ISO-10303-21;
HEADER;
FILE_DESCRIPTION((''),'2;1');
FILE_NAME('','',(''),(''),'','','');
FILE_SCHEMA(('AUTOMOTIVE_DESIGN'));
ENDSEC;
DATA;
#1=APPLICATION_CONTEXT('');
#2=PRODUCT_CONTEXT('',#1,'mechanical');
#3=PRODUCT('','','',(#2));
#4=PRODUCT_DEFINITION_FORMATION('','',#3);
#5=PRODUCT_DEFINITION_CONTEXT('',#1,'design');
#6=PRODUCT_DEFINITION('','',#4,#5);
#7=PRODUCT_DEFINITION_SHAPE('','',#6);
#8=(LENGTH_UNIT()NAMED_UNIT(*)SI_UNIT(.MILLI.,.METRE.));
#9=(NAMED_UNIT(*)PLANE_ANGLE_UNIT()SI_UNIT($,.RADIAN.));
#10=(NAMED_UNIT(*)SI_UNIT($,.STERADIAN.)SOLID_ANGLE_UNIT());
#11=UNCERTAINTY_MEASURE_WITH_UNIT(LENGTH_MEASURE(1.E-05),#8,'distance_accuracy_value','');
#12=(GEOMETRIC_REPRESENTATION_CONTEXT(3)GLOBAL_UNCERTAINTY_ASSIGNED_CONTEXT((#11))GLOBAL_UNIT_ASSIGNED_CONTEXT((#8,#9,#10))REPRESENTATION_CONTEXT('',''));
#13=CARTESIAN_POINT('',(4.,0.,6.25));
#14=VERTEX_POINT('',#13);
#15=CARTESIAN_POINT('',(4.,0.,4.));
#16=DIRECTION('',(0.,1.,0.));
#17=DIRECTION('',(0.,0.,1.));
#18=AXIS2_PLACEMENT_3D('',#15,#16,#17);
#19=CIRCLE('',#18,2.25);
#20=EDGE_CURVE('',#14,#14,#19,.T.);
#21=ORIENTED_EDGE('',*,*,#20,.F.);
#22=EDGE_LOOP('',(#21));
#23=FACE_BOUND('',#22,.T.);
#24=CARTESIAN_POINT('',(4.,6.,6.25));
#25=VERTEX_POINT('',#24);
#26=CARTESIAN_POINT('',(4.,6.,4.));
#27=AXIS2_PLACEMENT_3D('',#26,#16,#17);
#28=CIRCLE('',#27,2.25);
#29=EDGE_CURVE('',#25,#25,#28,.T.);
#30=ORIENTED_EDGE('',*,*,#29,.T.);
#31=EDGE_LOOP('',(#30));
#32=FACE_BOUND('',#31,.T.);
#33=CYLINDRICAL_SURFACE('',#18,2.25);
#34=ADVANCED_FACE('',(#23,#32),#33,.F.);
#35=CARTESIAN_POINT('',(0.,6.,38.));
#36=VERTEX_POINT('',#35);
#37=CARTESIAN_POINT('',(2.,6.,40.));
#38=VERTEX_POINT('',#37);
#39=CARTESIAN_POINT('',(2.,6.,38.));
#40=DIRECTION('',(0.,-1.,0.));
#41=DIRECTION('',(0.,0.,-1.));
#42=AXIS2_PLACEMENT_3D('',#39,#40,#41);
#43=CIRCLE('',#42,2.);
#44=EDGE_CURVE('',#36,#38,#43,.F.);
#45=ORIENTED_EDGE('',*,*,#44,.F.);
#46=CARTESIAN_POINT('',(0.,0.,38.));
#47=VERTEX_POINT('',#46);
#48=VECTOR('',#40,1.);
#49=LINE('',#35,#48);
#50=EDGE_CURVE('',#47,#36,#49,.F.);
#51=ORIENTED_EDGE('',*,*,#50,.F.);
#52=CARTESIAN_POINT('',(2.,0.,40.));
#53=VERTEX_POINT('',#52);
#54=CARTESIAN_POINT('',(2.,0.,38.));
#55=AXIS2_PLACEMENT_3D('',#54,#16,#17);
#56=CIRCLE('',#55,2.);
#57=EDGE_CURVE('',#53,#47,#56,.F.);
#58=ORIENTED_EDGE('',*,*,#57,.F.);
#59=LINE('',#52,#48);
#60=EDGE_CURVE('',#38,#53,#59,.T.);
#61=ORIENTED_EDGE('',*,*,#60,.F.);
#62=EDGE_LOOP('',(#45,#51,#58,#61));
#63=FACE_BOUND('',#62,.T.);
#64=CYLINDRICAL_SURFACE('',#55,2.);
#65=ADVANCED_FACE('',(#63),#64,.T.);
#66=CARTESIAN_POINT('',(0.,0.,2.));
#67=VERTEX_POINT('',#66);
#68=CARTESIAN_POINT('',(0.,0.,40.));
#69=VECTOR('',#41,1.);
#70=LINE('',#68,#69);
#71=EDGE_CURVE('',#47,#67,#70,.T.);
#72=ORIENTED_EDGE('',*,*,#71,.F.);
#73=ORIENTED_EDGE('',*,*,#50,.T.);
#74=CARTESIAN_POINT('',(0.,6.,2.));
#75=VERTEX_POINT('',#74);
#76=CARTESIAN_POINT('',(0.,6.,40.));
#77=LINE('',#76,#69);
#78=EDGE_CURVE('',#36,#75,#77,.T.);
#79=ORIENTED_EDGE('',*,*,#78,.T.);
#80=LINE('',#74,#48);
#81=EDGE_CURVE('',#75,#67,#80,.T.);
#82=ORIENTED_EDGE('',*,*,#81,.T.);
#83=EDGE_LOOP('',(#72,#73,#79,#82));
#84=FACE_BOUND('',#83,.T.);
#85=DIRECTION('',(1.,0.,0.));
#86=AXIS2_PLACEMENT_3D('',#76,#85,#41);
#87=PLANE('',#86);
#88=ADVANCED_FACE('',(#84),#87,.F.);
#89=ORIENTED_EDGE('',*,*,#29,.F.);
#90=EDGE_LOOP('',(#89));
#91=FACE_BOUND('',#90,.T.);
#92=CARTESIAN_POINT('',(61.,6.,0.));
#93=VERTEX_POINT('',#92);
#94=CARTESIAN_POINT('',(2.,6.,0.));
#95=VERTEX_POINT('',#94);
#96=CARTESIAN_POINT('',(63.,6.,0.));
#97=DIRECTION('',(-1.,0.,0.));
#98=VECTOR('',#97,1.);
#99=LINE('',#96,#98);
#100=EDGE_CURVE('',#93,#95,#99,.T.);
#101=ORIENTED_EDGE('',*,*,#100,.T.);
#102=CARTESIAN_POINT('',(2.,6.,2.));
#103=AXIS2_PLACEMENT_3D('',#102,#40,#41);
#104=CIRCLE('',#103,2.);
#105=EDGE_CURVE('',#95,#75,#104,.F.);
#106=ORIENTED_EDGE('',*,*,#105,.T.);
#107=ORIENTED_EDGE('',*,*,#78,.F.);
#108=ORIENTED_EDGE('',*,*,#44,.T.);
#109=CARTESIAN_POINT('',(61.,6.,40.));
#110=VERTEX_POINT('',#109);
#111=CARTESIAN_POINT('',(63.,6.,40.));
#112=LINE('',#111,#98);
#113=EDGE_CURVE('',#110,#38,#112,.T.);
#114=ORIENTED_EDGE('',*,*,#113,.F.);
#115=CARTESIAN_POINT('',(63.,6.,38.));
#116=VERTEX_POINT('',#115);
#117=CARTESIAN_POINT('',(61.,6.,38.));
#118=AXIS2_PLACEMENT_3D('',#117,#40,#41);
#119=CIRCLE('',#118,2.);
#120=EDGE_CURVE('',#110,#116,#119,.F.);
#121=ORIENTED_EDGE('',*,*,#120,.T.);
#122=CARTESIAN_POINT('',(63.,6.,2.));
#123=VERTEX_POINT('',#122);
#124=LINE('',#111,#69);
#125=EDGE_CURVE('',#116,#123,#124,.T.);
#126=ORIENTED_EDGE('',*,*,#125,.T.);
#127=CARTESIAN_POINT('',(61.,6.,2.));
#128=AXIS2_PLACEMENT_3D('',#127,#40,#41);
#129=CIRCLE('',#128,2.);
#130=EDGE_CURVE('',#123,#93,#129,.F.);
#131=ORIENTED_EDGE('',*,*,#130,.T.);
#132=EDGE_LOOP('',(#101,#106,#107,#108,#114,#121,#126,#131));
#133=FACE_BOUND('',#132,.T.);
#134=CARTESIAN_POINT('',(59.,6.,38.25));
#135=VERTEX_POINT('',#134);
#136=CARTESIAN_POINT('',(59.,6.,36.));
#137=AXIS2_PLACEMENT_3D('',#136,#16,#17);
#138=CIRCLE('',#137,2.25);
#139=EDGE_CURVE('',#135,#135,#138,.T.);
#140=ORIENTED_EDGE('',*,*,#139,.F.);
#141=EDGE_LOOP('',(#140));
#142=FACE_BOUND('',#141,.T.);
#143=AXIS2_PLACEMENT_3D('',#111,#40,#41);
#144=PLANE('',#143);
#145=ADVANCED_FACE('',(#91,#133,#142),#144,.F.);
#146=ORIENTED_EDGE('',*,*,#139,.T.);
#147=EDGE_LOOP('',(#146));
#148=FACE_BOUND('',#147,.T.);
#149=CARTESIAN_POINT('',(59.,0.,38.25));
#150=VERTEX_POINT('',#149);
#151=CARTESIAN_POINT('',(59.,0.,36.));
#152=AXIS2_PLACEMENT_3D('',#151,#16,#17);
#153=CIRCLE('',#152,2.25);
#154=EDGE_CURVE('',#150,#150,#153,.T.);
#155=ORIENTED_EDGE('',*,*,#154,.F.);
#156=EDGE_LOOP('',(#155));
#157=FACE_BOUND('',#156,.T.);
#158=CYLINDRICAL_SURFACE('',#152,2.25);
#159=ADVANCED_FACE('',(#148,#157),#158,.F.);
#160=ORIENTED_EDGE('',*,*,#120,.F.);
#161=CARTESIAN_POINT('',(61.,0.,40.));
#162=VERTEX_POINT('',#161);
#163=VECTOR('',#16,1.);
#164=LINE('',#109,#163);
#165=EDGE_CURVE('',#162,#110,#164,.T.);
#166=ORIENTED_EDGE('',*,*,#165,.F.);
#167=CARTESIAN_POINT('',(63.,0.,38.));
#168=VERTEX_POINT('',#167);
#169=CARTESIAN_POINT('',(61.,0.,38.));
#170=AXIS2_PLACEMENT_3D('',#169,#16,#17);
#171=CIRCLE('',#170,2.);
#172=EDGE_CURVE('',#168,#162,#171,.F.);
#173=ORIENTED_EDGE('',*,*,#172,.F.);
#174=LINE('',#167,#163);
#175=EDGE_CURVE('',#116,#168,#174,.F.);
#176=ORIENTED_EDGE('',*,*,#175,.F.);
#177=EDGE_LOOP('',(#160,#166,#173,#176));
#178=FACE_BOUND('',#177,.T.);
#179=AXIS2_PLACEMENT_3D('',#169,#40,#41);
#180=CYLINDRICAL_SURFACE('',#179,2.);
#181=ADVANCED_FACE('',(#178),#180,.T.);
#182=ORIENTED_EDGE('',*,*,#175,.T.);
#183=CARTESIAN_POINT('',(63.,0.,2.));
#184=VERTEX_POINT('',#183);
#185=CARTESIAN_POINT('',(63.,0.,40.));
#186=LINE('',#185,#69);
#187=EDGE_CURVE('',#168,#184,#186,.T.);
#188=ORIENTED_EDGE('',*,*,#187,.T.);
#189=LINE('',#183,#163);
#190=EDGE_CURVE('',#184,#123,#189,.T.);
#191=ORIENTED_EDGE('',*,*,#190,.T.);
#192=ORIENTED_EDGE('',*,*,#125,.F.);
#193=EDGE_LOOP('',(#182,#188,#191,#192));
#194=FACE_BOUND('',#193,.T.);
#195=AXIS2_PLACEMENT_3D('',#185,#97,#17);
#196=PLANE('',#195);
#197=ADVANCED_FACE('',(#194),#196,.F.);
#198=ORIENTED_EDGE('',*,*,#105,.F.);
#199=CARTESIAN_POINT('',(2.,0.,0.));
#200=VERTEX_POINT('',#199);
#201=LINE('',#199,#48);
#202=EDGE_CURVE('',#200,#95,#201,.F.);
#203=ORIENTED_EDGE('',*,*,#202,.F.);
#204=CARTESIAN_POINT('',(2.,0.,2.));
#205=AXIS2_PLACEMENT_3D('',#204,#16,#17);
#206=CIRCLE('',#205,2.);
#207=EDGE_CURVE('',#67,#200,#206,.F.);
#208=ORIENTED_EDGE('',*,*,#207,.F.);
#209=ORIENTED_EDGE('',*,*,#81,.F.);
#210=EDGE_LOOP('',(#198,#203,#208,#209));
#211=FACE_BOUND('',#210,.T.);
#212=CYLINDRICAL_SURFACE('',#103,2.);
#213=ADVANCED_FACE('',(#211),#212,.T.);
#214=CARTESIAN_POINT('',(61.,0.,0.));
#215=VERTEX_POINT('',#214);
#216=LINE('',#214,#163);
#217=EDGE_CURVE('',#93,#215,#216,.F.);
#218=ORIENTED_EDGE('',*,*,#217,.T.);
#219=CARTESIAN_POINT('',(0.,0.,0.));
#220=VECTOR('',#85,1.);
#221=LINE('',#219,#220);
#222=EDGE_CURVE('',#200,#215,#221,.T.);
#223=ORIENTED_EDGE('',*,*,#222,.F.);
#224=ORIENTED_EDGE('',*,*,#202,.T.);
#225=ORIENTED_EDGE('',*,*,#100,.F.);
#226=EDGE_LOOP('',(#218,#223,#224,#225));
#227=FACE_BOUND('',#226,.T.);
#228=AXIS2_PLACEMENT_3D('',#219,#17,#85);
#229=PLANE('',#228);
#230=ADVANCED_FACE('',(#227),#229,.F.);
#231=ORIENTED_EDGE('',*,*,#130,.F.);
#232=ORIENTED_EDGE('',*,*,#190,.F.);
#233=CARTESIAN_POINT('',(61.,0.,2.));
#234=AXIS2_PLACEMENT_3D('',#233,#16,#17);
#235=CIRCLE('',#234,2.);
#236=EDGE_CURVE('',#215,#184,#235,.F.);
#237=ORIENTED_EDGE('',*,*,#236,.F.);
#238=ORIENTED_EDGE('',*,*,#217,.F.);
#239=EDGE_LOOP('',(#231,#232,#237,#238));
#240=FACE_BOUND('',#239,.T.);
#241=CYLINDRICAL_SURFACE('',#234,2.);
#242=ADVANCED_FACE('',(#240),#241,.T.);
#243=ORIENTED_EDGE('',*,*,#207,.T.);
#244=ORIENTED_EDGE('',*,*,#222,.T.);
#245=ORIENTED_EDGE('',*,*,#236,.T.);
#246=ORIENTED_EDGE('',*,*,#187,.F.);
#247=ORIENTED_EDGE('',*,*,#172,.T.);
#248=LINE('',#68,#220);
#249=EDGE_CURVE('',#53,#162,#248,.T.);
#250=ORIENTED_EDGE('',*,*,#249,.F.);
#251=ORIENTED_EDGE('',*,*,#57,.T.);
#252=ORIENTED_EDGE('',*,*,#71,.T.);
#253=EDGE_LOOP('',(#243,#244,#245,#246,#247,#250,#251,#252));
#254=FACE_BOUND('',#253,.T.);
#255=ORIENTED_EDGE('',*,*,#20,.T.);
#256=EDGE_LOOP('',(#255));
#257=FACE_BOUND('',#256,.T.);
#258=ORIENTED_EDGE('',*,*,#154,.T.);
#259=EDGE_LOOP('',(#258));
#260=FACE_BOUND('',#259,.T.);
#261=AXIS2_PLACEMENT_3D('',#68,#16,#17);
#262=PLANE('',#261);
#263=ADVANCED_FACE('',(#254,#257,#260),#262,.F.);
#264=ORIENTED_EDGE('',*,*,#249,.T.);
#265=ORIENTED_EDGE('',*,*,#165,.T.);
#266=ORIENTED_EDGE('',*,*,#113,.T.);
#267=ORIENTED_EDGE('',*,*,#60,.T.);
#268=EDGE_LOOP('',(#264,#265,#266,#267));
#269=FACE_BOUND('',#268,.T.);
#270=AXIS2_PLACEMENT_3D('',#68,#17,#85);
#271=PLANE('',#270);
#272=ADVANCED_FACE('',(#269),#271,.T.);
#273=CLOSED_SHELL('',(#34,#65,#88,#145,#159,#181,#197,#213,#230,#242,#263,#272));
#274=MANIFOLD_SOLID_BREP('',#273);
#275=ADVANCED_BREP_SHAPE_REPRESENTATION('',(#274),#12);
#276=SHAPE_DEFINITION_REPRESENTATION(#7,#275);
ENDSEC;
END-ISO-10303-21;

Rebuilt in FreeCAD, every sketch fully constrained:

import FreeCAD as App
import Part
import Sketcher
from FreeCAD import Vector
Q = App.Units.Quantity


def edges_at(feature, points):
    """Names of the edges that pass closest to the given points."""
    edges = feature.Shape.Edges
    near = lambda p: min(range(len(edges)), key=lambda i: edges[i].distToShape(Part.Vertex(*p))[0])
    return sorted({f"Edge{near(p) + 1}" for p in points})


def add_polygon(sketch, points):
    """Adds a closed chain of lines whose ends are joined by coincident constraints."""
    first, n = sketch.GeometryCount, len(points)
    for a, b in zip(points, points[1:] + points[:1]):
        sketch.addGeometry(Part.LineSegment(App.Vector(*a, 0), App.Vector(*b, 0)), False)
    for i in range(n):
        sketch.addConstraint(Sketcher.Constraint("Coincident", first + i, 2, first + (i + 1) % n, 1))

doc = App.newDocument("Part")
body = doc.addObject("PartDesign::Body", "Body")

# Sketch on XY plane
sketch1 = body.newObject("Sketcher::SketchObject", "Sketch")
sketch1.AttachmentSupport = (doc.getObject("XY_Plane"), [""])
sketch1.MapMode = "FlatFace"
add_polygon(sketch1, [(0, 6), (0, 0), (63, 0), (63, 6)])  # lines 0-3
sketch1.addConstraint(Sketcher.Constraint("Vertical", 0))
sketch1.addConstraint(Sketcher.Constraint("Horizontal", 1))
sketch1.addConstraint(Sketcher.Constraint("Vertical", 2))
sketch1.addConstraint(Sketcher.Constraint("Horizontal", 3))
sketch1.addConstraint(Sketcher.Constraint("Coincident", 0, 2, -1, 1))
sketch1.addConstraint(Sketcher.Constraint("DistanceX", 1, 1, 1, 2, Q("63 mm")))
sketch1.addConstraint(Sketcher.Constraint("DistanceY", 0, 2, 0, 1, Q("6 mm")))
pad1 = body.newObject("PartDesign::Pad", "Pad")
pad1.Profile = sketch1
pad1.Length = 40
doc.recompute()

fillet = body.newObject("PartDesign::Fillet", "Fillet")
fillet.Base = (pad1, edges_at(pad1, [
    (63, 3, 40),
    (0, 3, 40),
    (63, 3, 0),
    (0, 3, 0),
]))
fillet.Radius = 2

# Sketch on XZ plane
sketch2 = body.newObject("Sketcher::SketchObject", "Sketch001")
sketch2.AttachmentSupport = (doc.getObject("XZ_Plane"), [""])
sketch2.MapMode = "FlatFace"
sketch2.AttachmentOffset = App.Placement(Vector(0, 0, -6), App.Rotation())
sketch2.addGeometry(Part.Circle(Vector(4, 4, 0), Vector(0, 0, 1), 2.2), False)
sketch2.addConstraint(Sketcher.Constraint("Diameter", 0, Q("4.5 mm")))
sketch2.addConstraint(Sketcher.Constraint("DistanceX", -1, 1, 0, 3, Q("4 mm")))
sketch2.addConstraint(Sketcher.Constraint("DistanceY", -1, 1, 0, 3, Q("4 mm")))
pocket1 = body.newObject("PartDesign::Pocket", "Pocket")
pocket1.Profile = sketch2
pocket1.Type = "ThroughAll"
pocket1.Reversed = True

# Sketch on XZ plane
sketch3 = body.newObject("Sketcher::SketchObject", "Sketch002")
sketch3.AttachmentSupport = (doc.getObject("XZ_Plane"), [""])
sketch3.MapMode = "FlatFace"
sketch3.AttachmentOffset = App.Placement(Vector(0, 0, -6), App.Rotation())
sketch3.addGeometry(Part.Circle(Vector(59, 36, 0), Vector(0, 0, 1), 2.2), False)
sketch3.addConstraint(Sketcher.Constraint("Diameter", 0, Q("4.5 mm")))
sketch3.addConstraint(Sketcher.Constraint("DistanceX", -1, 1, 0, 3, Q("59 mm")))
sketch3.addConstraint(Sketcher.Constraint("DistanceY", -1, 1, 0, 3, Q("36 mm")))
pocket2 = body.newObject("PartDesign::Pocket", "Pocket001")
pocket2.Profile = sketch3
pocket2.Type = "ThroughAll"
pocket2.Reversed = True

doc.recompute()
